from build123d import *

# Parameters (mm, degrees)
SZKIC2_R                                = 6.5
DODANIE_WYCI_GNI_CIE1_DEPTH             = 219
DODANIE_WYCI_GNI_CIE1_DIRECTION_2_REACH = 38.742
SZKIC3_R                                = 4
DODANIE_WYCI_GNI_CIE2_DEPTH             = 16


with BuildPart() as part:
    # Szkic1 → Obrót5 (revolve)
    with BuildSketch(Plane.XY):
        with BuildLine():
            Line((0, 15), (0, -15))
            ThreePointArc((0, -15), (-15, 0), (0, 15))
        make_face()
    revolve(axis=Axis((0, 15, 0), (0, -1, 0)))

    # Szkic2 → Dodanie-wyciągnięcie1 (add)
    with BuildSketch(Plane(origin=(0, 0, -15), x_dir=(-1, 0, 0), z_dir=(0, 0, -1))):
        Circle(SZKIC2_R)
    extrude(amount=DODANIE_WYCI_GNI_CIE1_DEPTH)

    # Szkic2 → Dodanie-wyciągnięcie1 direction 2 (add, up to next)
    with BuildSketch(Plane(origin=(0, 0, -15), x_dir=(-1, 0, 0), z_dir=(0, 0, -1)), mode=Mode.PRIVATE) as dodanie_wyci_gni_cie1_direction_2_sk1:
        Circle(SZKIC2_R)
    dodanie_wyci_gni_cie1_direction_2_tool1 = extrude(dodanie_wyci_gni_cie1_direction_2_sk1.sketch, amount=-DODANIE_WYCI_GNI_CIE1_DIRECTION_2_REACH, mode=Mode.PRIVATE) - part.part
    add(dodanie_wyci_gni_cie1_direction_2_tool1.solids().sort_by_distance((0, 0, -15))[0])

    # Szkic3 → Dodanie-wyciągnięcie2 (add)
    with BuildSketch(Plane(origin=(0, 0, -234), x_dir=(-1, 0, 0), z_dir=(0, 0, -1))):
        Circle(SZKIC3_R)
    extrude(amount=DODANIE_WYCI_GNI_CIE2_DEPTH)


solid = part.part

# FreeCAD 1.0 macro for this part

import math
import FreeCAD as App
import Part
import Sketcher

V = App.Vector
Q = App.Units.Quantity

doc = App.newDocument("Part")
body = doc.addObject("PartDesign::Body", "Body")
body.AllowCompound = True

sketch1 = doc.addObject("Sketcher::SketchObject", "Sketch")
body.addObject(sketch1)
sketch1.AttachmentSupport = (doc.XY_Plane, [""])
sketch1.MapMode = "FlatFace"
sketch1.addGeometry(Part.LineSegment(V(0, -15, 0), V(0, 15, 0)), False)
sketch1.addGeometry(Part.ArcOfCircle(Part.Circle(V(0, 0, 0), V(0, 0, 1), 15), math.radians(90), math.radians(270)), False)
sketch1.addConstraint(Sketcher.Constraint("Coincident", 0, 1, 1, 2))
sketch1.addConstraint(Sketcher.Constraint("Coincident", 1, 1, 0, 2))
sketch1.addConstraint(Sketcher.Constraint("Vertical", 0))
sketch1.addConstraint(Sketcher.Constraint("Coincident", 1, 3, -1, 1))
sketch1.addConstraint(Sketcher.Constraint("PointOnObject", 0, 1, -2))
sketch1.addConstraint(Sketcher.Constraint("Radius", 1, Q("15 mm")))
revolution = doc.addObject("PartDesign::Revolution", "Revolution")
body.addObject(revolution)
revolution.Profile = sketch1
revolution.ReferenceAxis = (sketch1, ["V_Axis"])
revolution.Angle = 360

sketch2 = doc.addObject("Sketcher::SketchObject", "Sketch001")
body.addObject(sketch2)
sketch2.AttachmentSupport = (doc.XY_Plane, [""])
sketch2.MapMode = "FlatFace"
sketch2.AttachmentOffset = App.Placement(V(0, 0, -15), App.Rotation())
sketch2.addGeometry(Part.Circle(V(0, 0, 0), V(0, 0, 1), 6), False)
sketch2.addConstraint(Sketcher.Constraint("Coincident", 0, 3, -1, 1))
sketch2.addConstraint(Sketcher.Constraint("Diameter", 0, Q("13 mm")))
pad1 = doc.addObject("PartDesign::Pad", "Pad")
body.addObject(pad1)
pad1.Profile = sketch2
pad1.Length = 219
pad1.Reversed = True

sketch3 = doc.addObject("Sketcher::SketchObject", "Sketch002")
body.addObject(sketch3)
sketch3.AttachmentSupport = (doc.XY_Plane, [""])
sketch3.MapMode = "FlatFace"
sketch3.AttachmentOffset = App.Placement(V(0, 0, -15), App.Rotation())
sketch3.addGeometry(Part.Circle(V(0, 0, 0), V(0, 0, 1), 6), False)
sketch3.addConstraint(Sketcher.Constraint("Coincident", 0, 3, -1, 1))
sketch3.addConstraint(Sketcher.Constraint("Diameter", 0, Q("13 mm")))
pad2 = doc.addObject("PartDesign::Pad", "Pad001")
body.addObject(pad2)
pad2.Profile = sketch3
pad2.Length = 1.481494

sketch4 = doc.addObject("Sketcher::SketchObject", "Sketch003")
body.addObject(sketch4)
sketch4.AttachmentSupport = (doc.XY_Plane, [""])
sketch4.MapMode = "FlatFace"
sketch4.AttachmentOffset = App.Placement(V(0, 0, -234), App.Rotation())
sketch4.addGeometry(Part.Circle(V(0, 0, 0), V(0, 0, 1), 4), False)
sketch4.addConstraint(Sketcher.Constraint("Coincident", 0, 3, -1, 1))
sketch4.addConstraint(Sketcher.Constraint("Diameter", 0, Q("8 mm")))
pad3 = doc.addObject("PartDesign::Pad", "Pad002")
body.addObject(pad3)
pad3.Profile = sketch4
pad3.Length = 16
pad3.Reversed = True

doc.recompute()
